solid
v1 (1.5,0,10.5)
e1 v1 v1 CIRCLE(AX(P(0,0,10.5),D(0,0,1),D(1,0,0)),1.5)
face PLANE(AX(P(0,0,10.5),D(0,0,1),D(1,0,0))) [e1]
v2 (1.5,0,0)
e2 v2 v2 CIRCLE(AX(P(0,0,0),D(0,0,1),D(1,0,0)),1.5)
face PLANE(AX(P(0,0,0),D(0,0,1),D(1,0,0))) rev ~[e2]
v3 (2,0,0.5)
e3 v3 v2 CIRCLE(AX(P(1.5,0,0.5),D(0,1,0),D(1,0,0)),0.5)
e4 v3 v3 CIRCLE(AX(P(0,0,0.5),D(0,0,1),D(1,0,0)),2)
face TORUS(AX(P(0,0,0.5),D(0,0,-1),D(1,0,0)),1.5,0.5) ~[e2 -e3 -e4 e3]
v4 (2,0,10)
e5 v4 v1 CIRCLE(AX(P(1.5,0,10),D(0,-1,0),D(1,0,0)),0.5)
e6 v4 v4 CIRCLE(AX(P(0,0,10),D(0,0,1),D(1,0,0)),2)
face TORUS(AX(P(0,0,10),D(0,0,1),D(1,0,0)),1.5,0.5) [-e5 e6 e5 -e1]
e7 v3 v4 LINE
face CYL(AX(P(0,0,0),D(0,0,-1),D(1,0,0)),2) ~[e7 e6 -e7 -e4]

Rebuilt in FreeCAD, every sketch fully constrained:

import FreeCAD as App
import Part
import Sketcher
Q = App.Units.Quantity


def edges_at(feature, points):
    """Names of the edges that pass closest to the given points."""
    edges = feature.Shape.Edges
    near = lambda p: min(range(len(edges)), key=lambda i: edges[i].distToShape(Part.Vertex(*p))[0])
    return sorted({f"Edge{near(p) + 1}" for p in points})

doc = App.newDocument("Part")
body = doc.addObject("PartDesign::Body", "Body")

sketch1 = body.newObject("Sketcher::SketchObject", "Sketch")
sketch1.AttachmentSupport = (doc.getObject("XY_Plane"), [""])
sketch1.MapMode = "FlatFace"
sketch1.addGeometry(Part.Circle(App.Vector(0, 0, 0), App.Vector(0, 0, 1), 2), False)
sketch1.addConstraint([
    Sketcher.Constraint("Coincident", 0, 3, -1, 1),
    Sketcher.Constraint("Diameter", 0, Q("4 mm")),
])
pad1 = body.newObject("PartDesign::Pad", "Pad")
pad1.Profile = sketch1
pad1.Length = 10.5
doc.recompute()

fillet = body.newObject("PartDesign::Fillet", "Fillet")
fillet.Base = (pad1, edges_at(pad1, [(-2, 0, 0), (-2, 0, 10.5)]))
fillet.Radius = 0.5

doc.recompute()
